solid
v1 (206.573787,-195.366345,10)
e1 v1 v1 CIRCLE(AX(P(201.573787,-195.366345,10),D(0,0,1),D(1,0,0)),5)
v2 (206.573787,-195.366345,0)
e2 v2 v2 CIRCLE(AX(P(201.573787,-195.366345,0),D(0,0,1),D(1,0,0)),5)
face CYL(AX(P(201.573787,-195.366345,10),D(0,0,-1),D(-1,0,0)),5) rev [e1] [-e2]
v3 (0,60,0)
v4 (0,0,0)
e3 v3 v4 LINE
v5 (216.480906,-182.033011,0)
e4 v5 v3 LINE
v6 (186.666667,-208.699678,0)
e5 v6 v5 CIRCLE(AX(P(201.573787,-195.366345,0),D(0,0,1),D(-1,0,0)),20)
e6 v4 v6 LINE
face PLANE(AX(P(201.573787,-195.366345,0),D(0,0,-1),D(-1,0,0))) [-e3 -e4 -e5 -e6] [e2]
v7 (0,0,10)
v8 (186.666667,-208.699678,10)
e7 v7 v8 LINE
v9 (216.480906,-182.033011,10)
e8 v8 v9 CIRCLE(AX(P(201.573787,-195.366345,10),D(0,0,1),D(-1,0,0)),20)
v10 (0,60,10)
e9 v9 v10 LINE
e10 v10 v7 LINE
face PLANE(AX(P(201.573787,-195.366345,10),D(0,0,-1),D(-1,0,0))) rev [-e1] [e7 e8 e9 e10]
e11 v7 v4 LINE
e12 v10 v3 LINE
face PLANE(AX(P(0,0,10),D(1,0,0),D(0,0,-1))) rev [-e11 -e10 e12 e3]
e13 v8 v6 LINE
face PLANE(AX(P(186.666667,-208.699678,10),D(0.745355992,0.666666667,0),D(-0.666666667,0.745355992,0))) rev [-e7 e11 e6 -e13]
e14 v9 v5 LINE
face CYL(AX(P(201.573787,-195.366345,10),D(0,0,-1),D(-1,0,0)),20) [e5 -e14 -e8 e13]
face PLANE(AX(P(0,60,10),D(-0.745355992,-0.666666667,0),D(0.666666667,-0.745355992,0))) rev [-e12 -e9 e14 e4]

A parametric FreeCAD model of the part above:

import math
import FreeCAD as App
import Part
import Sketcher

V = App.Vector

doc = App.newDocument("Part")
body = doc.addObject("PartDesign::Body", "Body")

# Sketch on XY plane
sketch1 = body.newObject("Sketcher::SketchObject", "Sketch")
sketch1.AttachmentSupport = (doc.getObject("XY_Plane"), [""])
sketch1.MapMode = "FlatFace"
sketch1.addGeometry([
    Part.LineSegment(V(0, 60, 0), V(0, 0, 0)),  # 0
    Part.LineSegment(V(0, 0, 0), V(187, -209, 0)),  # 1
    Part.ArcOfCircle(Part.Circle(V(202, -195, 0), V(0, 0, 1), 20), math.radians(-138), math.radians(42)),  # 2
    Part.LineSegment(V(216, -182, 0), V(0, 60, 0)),  # 3
    Part.Circle(V(202, -195, 0), V(0, 0, 1), 5),  # 4
], False)
sketch1.addConstraint([
    Sketcher.Constraint("Coincident", 0, 2, 1, 1),
    Sketcher.Constraint("Tangent", 1, 2, 2, 1),
    Sketcher.Constraint("Tangent", 2, 2, 3, 1),
    Sketcher.Constraint("Coincident", 3, 2, 0, 1),
    Sketcher.Constraint("Vertical", 0),
    Sketcher.Constraint("Coincident", 0, 2, -1, 1),
    Sketcher.Constraint("Coincident", 4, 3, 2, 3),
    Sketcher.Constraint("Parallel", 1, 3),
    Sketcher.Constraint("Diameter", 4, 10.0),
    Sketcher.Constraint("Radius", 2, 20.0),
    Sketcher.Constraint("DistanceY", 0, 2, 0, 1, 60.0),
    Sketcher.Constraint("Distance", 1, 280.0),
])
pad1 = body.newObject("PartDesign::Pad", "Pad")
pad1.Profile = sketch1
pad1.Length = 10

doc.recompute()
